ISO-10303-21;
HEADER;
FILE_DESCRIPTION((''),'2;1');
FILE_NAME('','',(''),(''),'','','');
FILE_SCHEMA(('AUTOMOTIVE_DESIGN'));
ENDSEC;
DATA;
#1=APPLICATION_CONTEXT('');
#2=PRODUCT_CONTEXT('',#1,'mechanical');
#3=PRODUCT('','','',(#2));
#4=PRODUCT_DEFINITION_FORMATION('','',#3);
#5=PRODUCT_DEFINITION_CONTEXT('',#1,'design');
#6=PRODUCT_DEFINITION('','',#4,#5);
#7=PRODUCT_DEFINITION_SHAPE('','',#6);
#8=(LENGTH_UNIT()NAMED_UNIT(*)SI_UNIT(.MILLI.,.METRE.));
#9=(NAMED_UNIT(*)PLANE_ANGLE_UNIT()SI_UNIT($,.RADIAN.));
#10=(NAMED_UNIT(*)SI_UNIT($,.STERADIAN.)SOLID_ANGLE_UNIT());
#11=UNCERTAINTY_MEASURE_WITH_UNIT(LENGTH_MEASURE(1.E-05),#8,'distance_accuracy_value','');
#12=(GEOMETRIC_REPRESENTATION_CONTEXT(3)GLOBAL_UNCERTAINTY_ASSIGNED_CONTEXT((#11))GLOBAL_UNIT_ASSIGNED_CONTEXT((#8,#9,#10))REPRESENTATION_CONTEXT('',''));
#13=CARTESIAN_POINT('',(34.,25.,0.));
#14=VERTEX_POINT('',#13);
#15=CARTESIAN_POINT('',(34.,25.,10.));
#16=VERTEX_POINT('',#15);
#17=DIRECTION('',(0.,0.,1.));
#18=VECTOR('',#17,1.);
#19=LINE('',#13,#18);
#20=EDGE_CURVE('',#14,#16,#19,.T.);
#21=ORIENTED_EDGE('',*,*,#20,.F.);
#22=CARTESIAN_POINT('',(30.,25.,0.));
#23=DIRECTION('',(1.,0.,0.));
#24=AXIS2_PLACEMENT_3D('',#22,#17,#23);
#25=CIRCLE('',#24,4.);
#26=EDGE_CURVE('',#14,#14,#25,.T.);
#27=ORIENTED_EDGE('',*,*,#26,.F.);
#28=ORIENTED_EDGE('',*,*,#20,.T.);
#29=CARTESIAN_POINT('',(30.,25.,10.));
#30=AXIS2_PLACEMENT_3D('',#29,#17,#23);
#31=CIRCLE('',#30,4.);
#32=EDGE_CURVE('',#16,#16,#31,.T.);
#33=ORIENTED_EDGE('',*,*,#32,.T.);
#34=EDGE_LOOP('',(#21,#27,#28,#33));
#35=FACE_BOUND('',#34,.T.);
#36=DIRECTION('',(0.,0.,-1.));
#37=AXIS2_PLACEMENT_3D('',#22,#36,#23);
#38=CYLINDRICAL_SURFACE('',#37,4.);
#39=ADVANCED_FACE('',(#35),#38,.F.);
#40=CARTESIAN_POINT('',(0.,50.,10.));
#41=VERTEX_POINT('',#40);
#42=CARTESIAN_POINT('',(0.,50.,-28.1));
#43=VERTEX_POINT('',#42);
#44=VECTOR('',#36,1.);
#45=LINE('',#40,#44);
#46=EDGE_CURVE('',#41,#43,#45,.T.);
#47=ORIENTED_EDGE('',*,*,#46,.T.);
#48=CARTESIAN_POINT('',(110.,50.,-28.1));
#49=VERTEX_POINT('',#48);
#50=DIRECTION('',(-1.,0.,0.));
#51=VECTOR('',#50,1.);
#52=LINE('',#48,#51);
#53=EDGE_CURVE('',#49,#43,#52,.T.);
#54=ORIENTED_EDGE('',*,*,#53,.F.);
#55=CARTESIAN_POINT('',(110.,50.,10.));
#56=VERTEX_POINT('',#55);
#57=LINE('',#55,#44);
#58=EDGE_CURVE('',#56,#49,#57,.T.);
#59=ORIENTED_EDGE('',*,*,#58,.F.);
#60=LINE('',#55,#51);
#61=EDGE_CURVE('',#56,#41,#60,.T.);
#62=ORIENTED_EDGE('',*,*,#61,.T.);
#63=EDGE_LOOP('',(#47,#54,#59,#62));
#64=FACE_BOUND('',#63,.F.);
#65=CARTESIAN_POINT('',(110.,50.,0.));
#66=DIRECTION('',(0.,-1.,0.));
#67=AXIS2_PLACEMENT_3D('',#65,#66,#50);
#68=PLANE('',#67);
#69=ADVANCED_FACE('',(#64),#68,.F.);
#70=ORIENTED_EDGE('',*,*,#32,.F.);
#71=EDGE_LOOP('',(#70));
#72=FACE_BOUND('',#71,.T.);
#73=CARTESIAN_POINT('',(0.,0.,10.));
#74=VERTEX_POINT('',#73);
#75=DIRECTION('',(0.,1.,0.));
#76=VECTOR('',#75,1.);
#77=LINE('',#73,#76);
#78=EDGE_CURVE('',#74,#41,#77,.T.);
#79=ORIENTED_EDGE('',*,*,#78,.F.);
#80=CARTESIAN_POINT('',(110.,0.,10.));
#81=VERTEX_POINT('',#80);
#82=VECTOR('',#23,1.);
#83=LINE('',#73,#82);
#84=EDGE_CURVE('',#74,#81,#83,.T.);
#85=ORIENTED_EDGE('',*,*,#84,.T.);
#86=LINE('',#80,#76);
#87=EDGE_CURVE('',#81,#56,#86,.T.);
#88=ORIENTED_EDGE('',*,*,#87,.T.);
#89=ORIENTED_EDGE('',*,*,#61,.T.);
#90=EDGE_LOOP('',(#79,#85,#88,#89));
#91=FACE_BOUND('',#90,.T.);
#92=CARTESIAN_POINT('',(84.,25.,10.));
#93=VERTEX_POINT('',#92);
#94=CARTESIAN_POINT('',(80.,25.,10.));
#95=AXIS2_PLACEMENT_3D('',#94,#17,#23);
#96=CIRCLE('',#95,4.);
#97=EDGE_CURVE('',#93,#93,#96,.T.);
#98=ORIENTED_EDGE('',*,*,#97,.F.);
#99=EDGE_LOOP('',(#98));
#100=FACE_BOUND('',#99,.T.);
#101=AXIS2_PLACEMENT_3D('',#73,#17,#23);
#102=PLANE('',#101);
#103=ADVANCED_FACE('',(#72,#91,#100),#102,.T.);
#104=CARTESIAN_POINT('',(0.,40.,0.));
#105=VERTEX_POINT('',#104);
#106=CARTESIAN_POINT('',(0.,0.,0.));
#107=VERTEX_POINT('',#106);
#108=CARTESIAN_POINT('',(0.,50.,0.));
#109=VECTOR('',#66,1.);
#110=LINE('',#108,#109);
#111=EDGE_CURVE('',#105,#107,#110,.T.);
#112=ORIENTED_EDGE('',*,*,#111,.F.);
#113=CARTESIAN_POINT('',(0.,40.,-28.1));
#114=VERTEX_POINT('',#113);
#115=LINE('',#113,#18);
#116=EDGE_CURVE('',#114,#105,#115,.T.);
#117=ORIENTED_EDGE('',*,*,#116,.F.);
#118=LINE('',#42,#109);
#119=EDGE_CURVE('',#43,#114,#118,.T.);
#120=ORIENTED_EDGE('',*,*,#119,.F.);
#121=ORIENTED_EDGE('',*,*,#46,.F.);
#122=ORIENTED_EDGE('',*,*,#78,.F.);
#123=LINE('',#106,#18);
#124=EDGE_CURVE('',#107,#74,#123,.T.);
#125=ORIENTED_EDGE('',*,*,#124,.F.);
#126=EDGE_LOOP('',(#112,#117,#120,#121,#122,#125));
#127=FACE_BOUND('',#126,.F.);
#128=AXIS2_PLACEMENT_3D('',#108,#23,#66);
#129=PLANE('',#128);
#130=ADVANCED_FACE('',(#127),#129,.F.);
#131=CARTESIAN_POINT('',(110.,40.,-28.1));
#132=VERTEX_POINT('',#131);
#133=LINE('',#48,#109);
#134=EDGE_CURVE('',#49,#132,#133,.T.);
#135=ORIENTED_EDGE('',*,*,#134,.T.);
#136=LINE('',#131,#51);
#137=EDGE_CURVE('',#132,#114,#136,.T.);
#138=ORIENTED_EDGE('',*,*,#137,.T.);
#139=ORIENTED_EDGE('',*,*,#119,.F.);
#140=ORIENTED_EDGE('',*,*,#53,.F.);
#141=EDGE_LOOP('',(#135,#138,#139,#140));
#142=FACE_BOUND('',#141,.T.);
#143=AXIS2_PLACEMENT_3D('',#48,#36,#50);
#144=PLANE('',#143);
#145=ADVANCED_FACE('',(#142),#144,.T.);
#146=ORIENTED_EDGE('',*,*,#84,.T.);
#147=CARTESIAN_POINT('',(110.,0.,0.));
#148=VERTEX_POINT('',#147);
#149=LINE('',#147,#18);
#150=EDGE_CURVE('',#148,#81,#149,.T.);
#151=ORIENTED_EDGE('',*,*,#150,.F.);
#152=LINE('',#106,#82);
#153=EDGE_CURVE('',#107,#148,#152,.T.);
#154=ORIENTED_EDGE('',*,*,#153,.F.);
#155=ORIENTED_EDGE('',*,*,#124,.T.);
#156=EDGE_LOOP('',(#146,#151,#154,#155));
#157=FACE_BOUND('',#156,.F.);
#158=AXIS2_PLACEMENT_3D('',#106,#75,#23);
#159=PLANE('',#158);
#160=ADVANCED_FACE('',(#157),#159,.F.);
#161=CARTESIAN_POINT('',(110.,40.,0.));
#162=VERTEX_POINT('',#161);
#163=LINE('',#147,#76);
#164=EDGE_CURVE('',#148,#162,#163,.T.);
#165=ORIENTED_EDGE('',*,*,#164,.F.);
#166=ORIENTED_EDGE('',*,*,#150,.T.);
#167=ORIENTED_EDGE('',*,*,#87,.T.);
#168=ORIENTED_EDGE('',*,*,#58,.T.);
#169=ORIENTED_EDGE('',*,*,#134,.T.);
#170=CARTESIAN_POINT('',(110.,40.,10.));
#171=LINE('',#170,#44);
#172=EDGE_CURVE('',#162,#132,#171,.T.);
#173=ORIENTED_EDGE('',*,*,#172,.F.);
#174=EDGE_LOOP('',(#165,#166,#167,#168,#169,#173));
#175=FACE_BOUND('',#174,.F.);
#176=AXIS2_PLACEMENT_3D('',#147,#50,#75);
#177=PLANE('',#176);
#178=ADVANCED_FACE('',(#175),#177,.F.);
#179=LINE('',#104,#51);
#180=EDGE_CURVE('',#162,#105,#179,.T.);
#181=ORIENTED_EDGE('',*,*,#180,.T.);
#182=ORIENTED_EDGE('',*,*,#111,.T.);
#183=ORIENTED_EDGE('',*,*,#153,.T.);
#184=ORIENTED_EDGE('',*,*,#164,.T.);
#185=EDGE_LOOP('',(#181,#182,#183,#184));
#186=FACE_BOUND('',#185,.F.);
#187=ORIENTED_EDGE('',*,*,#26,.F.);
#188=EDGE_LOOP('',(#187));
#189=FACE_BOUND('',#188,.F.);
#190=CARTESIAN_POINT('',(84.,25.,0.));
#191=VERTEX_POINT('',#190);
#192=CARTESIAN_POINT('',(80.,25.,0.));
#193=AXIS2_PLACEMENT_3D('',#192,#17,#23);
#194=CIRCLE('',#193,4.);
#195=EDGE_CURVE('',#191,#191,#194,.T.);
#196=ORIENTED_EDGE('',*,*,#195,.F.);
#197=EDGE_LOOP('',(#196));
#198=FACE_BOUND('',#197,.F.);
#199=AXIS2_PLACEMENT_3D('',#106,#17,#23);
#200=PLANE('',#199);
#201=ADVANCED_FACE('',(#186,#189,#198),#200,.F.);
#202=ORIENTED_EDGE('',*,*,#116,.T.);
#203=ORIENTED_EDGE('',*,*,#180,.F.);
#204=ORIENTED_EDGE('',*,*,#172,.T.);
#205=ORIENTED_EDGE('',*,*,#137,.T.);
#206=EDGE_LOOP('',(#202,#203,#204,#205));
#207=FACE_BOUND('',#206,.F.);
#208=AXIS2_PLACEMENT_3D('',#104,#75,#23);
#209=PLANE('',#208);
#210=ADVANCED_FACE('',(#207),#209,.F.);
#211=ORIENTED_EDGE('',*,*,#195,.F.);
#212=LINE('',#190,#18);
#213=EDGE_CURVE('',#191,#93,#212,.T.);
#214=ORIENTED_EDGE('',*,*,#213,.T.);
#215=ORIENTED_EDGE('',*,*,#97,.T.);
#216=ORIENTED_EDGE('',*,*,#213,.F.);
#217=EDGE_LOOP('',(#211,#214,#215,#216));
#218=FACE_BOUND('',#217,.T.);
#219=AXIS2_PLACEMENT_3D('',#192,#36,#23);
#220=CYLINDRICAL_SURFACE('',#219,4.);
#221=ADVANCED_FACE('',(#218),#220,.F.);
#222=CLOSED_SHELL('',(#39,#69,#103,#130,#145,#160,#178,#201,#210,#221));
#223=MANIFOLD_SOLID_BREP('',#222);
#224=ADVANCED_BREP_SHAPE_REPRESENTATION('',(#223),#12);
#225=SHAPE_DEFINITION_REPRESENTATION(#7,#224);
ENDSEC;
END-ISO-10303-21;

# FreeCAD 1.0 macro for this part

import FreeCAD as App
import Part
import Sketcher


def add_polygon(sketch, points):
    """Adds a closed chain of lines whose ends are joined by coincident constraints."""
    first, n = sketch.GeometryCount, len(points)
    for a, b in zip(points, points[1:] + points[:1]):
        sketch.addGeometry(Part.LineSegment(App.Vector(*a, 0), App.Vector(*b, 0)), False)
    for i in range(n):
        sketch.addConstraint(Sketcher.Constraint("Coincident", first + i, 2, first + (i + 1) % n, 1))

doc = App.newDocument("Part")
body = doc.addObject("PartDesign::Body", "Body")

sketch1 = body.newObject("Sketcher::SketchObject", "Sketch")
sketch1.AttachmentSupport = (doc.getObject("XY_Plane"), [""])
sketch1.MapMode = "FlatFace"
add_polygon(sketch1, [(0, 50), (0, 0), (110, 0), (110, 50)])
sketch1.addGeometry(Part.Circle(App.Vector(30, 25, 0), App.Vector(0, 0, 1), 4), False)
sketch1.addGeometry(Part.Circle(App.Vector(80, 25, 0), App.Vector(0, 0, 1), 4), False)
sketch1.addConstraint(Sketcher.Constraint("Vertical", 0))
sketch1.addConstraint(Sketcher.Constraint("Horizontal", 1))
sketch1.addConstraint(Sketcher.Constraint("Vertical", 2))
sketch1.addConstraint(Sketcher.Constraint("Horizontal", 3))
sketch1.addConstraint(Sketcher.Constraint("Coincident", 0, 2, -1, 1))
sketch1.addConstraint(Sketcher.Constraint("Equal", 4, 5))
sketch1.addConstraint(Sketcher.Constraint("Horizontal", 4, 3, 5, 3))
sketch1.addConstraint(Sketcher.Constraint("Diameter", 4, 8.0))
sketch1.addConstraint(Sketcher.Constraint("DistanceX", 1, 1, 1, 2, 110.0))
sketch1.addConstraint(Sketcher.Constraint("DistanceY", 0, 2, 0, 1, 50.0))
sketch1.addConstraint(Sketcher.Constraint("DistanceX", -1, 1, 4, 3, 30.0))
sketch1.addConstraint(Sketcher.Constraint("DistanceX", 4, 3, 5, 3, 50.0))
sketch1.addConstraint(Sketcher.Constraint("DistanceY", -1, 1, 4, 3, 25.0))
pad1 = body.newObject("PartDesign::Pad", "Pad")
pad1.Profile = sketch1
pad1.Length = 10

sketch2 = body.newObject("Sketcher::SketchObject", "Sketch001")
sketch2.AttachmentSupport = (doc.getObject("XZ_Plane"), [""])
sketch2.MapMode = "FlatFace"
sketch2.AttachmentOffset = App.Placement(App.Vector(0, 0, -50), App.Rotation())
add_polygon(sketch2, [(0, 10), (110, 10), (110, -28), (0, -28)])
sketch2.addConstraint(Sketcher.Constraint("Horizontal", 0))
sketch2.addConstraint(Sketcher.Constraint("Vertical", 1))
sketch2.addConstraint(Sketcher.Constraint("Horizontal", 2))
sketch2.addConstraint(Sketcher.Constraint("Vertical", 3))
sketch2.addConstraint(Sketcher.Constraint("PointOnObject", 2, 2, -2))
sketch2.addConstraint(Sketcher.Constraint("DistanceY", 1, 2, 1, 1, 38.1))
sketch2.addConstraint(Sketcher.Constraint("DistanceX", 0, 1, 0, 2, 110.0))
sketch2.addConstraint(Sketcher.Constraint("DistanceY", -1, 1, 0, 2, 10.0))
pad2 = body.newObject("PartDesign::Pad", "Pad001")
pad2.Profile = sketch2
pad2.Length = 10

doc.recompute()
